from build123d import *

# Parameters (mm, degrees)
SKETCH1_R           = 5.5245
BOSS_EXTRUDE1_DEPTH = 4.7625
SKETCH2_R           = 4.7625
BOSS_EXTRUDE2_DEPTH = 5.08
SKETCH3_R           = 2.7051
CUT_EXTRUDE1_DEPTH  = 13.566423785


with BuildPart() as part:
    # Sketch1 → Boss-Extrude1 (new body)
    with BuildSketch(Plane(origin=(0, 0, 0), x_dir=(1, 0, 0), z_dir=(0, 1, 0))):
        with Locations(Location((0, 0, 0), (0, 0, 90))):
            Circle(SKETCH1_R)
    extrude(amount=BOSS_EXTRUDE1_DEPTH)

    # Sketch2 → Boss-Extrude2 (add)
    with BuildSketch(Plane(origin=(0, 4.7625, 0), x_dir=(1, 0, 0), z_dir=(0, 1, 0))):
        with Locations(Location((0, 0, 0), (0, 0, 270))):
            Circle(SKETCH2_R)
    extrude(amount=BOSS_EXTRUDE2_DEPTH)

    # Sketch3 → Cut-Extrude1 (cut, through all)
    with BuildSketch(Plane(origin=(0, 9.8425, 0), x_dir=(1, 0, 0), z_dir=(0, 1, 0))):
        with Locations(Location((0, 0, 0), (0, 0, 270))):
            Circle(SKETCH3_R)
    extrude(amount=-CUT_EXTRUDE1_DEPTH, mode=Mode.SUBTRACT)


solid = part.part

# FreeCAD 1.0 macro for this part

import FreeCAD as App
import Part
import Sketcher
from FreeCAD import Vector
Q = App.Units.Quantity

doc = App.newDocument("Part")
body = doc.addObject("PartDesign::Body", "Body")

sketch1 = body.newObject("Sketcher::SketchObject", "Sketch")
sketch1.AttachmentSupport = (doc.getObject("XZ_Plane"), [""])
sketch1.MapMode = "FlatFace"
sketch1.addGeometry(Part.Circle(Vector(0, 0, 0), Vector(0, 0, 1), 6), False)
sketch1.addConstraint(Sketcher.Constraint("Coincident", 0, 3, -1, 1))
sketch1.addConstraint(Sketcher.Constraint("Diameter", 0, Q("0.435 in")))
pad1 = body.newObject("PartDesign::Pad", "Pad")
pad1.Profile = sketch1
pad1.Length = Q("0.1875 in")
pad1.Reversed = True

sketch2 = body.newObject("Sketcher::SketchObject", "Sketch001")
sketch2.AttachmentSupport = (doc.getObject("XZ_Plane"), [""])
sketch2.MapMode = "FlatFace"
sketch2.AttachmentOffset = App.Placement(Vector(0, 0, -0.1875 * 25.4), App.Rotation())
sketch2.addGeometry(Part.Circle(Vector(0, 0, 0), Vector(0, 0, 1), 4.8), False)
sketch2.addConstraint(Sketcher.Constraint("Coincident", 0, 3, -1, 1))
sketch2.addConstraint(Sketcher.Constraint("Diameter", 0, Q("0.375 in")))
pad2 = body.newObject("PartDesign::Pad", "Pad001")
pad2.Profile = sketch2
pad2.Length = Q("0.2 in")
pad2.Reversed = True

sketch3 = body.newObject("Sketcher::SketchObject", "Sketch002")
sketch3.AttachmentSupport = (doc.getObject("XZ_Plane"), [""])
sketch3.MapMode = "FlatFace"
sketch3.AttachmentOffset = App.Placement(Vector(0, 0, -0.3875 * 25.4), App.Rotation())
sketch3.addGeometry(Part.Circle(Vector(0, 0, 0), Vector(0, 0, 1), 2.7), False)
sketch3.addConstraint(Sketcher.Constraint("Coincident", 0, 3, -1, 1))
sketch3.addConstraint(Sketcher.Constraint("Diameter", 0, Q("0.213 in")))
pocket1 = body.newObject("PartDesign::Pocket", "Pocket")
pocket1.Profile = sketch3
pocket1.Type = "ThroughAll"
pocket1.Reversed = True

doc.recompute()
